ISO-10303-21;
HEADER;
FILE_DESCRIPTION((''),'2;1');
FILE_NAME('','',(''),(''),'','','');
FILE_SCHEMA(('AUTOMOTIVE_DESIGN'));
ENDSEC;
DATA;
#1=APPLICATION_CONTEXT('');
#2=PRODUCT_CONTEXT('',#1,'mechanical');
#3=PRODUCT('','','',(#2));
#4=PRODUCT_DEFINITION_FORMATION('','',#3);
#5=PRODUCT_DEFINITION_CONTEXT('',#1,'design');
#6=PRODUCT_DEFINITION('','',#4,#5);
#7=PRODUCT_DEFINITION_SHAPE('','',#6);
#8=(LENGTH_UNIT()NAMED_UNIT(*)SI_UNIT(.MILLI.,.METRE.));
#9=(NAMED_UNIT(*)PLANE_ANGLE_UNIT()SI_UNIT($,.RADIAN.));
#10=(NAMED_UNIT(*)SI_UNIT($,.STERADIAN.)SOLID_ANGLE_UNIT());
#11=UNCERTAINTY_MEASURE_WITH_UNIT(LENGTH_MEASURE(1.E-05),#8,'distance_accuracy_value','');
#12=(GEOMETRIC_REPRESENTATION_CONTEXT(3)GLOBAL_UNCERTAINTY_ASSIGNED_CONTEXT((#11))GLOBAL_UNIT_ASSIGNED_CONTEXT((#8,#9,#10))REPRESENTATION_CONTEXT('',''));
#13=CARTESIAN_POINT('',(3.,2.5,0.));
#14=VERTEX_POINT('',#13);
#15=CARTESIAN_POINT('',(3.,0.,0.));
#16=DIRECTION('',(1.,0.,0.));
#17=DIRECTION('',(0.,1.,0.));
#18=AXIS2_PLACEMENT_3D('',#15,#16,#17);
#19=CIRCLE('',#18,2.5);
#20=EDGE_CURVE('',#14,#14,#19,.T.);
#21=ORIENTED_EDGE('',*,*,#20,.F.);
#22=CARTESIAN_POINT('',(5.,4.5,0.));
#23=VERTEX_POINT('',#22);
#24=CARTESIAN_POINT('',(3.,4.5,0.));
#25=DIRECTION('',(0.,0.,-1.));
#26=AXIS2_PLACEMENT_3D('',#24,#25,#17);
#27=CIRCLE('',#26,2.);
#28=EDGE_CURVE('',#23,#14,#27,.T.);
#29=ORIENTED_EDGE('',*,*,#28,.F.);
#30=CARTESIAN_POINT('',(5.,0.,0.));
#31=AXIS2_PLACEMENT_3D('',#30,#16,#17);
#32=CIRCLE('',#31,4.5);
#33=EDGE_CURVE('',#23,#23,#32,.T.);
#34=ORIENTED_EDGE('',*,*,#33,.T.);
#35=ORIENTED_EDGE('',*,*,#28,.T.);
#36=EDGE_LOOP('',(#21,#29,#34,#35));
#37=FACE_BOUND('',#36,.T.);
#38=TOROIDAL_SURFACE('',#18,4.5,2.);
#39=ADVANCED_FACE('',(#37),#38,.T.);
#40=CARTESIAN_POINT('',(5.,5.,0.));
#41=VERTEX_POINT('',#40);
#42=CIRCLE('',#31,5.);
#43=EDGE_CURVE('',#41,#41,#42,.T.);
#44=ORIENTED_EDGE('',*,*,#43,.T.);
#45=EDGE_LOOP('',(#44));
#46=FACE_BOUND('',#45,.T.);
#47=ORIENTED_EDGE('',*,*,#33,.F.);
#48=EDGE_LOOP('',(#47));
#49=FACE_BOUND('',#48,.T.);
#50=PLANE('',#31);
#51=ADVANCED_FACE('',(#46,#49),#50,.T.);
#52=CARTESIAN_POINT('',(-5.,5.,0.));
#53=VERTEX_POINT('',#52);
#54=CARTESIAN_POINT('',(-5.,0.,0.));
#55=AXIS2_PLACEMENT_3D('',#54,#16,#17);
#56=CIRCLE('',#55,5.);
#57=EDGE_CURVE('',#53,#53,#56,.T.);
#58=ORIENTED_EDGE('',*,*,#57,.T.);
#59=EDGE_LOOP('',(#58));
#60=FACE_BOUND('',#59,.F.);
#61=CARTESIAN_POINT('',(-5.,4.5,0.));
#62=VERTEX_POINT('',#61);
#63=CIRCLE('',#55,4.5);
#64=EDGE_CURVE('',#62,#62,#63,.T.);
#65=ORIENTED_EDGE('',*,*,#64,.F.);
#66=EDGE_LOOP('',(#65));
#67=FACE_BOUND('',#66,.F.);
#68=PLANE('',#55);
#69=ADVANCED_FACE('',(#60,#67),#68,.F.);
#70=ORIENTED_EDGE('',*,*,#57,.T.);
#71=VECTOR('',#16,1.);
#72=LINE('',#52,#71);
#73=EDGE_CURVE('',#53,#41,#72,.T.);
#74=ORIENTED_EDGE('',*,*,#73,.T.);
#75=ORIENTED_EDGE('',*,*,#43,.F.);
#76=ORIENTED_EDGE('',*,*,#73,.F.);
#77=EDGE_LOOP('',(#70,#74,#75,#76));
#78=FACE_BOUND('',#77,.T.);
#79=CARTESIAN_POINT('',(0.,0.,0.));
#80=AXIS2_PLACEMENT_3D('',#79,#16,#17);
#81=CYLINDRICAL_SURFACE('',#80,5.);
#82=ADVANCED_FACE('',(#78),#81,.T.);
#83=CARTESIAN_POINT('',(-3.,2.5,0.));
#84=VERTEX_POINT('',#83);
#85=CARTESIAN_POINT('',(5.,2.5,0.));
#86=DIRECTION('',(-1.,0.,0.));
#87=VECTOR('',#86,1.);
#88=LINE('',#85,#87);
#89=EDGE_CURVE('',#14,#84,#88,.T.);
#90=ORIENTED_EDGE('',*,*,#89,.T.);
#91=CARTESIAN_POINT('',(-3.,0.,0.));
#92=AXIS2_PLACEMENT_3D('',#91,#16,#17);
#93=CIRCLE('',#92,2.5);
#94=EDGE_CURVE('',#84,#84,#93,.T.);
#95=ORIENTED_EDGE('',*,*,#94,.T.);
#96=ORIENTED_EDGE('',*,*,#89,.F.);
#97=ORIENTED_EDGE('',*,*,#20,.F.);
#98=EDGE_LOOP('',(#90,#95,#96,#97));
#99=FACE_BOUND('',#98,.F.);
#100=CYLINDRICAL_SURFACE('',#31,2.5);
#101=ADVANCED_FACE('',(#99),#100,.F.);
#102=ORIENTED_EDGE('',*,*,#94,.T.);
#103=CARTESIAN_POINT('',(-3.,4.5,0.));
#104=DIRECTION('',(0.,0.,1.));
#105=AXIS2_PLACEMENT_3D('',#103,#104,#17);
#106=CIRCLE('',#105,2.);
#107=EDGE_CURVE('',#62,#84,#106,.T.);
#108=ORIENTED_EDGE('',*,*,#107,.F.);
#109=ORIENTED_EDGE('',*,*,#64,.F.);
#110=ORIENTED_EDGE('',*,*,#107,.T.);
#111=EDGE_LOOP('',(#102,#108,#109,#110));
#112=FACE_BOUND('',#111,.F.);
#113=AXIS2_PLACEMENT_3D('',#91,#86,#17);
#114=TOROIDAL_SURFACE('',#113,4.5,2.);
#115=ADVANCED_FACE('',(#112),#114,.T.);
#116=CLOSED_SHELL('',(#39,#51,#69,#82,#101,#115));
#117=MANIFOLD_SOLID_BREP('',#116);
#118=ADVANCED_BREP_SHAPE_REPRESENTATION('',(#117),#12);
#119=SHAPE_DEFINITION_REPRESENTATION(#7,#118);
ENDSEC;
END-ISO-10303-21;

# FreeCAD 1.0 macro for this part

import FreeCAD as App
import Part
import Sketcher


def edges_at(feature, points):
    """Names of the edges that pass closest to the given points."""
    edges = feature.Shape.Edges
    near = lambda p: min(range(len(edges)), key=lambda i: edges[i].distToShape(Part.Vertex(*p))[0])
    return sorted({f"Edge{near(p) + 1}" for p in points})

doc = App.newDocument("Part")
body = doc.addObject("PartDesign::Body", "Body")

# Sketch on YZ plane
sketch1 = body.newObject("Sketcher::SketchObject", "Sketch")
sketch1.AttachmentSupport = (doc.getObject("YZ_Plane"), [""])
sketch1.MapMode = "FlatFace"
sketch1.addGeometry(Part.Circle(App.Vector(0, 0, 0), App.Vector(0, 0, 1), 5), False)
sketch1.addConstraint(Sketcher.Constraint("Coincident", 0, 3, -1, 1))
sketch1.addConstraint(Sketcher.Constraint("Diameter", 0, 10.0))
pad1 = body.newObject("PartDesign::Pad", "Pad")
pad1.Profile = sketch1
pad1.Length = 10
pad1.Midplane = True

# Sketch on YZ plane
sketch2 = body.newObject("Sketcher::SketchObject", "Sketch001")
sketch2.AttachmentSupport = (doc.getObject("YZ_Plane"), [""])
sketch2.MapMode = "FlatFace"
sketch2.AttachmentOffset = App.Placement(App.Vector(0, 0, 5), App.Rotation())
sketch2.addGeometry(Part.Circle(App.Vector(0, 0, 0), App.Vector(0, 0, 1), 2.5), False)
sketch2.addConstraint(Sketcher.Constraint("Coincident", 0, 3, -1, 1))
sketch2.addConstraint(Sketcher.Constraint("Diameter", 0, 5.0))
pocket1 = body.newObject("PartDesign::Pocket", "Pocket")
pocket1.Profile = sketch2
pocket1.Length = 25
doc.recompute()

fillet = body.newObject("PartDesign::Fillet", "Fillet")
fillet.Base = (pocket1, edges_at(pocket1, [(5, -2.5, 0), (-5, -2.5, 0)]))
fillet.Radius = 2

doc.recompute()
